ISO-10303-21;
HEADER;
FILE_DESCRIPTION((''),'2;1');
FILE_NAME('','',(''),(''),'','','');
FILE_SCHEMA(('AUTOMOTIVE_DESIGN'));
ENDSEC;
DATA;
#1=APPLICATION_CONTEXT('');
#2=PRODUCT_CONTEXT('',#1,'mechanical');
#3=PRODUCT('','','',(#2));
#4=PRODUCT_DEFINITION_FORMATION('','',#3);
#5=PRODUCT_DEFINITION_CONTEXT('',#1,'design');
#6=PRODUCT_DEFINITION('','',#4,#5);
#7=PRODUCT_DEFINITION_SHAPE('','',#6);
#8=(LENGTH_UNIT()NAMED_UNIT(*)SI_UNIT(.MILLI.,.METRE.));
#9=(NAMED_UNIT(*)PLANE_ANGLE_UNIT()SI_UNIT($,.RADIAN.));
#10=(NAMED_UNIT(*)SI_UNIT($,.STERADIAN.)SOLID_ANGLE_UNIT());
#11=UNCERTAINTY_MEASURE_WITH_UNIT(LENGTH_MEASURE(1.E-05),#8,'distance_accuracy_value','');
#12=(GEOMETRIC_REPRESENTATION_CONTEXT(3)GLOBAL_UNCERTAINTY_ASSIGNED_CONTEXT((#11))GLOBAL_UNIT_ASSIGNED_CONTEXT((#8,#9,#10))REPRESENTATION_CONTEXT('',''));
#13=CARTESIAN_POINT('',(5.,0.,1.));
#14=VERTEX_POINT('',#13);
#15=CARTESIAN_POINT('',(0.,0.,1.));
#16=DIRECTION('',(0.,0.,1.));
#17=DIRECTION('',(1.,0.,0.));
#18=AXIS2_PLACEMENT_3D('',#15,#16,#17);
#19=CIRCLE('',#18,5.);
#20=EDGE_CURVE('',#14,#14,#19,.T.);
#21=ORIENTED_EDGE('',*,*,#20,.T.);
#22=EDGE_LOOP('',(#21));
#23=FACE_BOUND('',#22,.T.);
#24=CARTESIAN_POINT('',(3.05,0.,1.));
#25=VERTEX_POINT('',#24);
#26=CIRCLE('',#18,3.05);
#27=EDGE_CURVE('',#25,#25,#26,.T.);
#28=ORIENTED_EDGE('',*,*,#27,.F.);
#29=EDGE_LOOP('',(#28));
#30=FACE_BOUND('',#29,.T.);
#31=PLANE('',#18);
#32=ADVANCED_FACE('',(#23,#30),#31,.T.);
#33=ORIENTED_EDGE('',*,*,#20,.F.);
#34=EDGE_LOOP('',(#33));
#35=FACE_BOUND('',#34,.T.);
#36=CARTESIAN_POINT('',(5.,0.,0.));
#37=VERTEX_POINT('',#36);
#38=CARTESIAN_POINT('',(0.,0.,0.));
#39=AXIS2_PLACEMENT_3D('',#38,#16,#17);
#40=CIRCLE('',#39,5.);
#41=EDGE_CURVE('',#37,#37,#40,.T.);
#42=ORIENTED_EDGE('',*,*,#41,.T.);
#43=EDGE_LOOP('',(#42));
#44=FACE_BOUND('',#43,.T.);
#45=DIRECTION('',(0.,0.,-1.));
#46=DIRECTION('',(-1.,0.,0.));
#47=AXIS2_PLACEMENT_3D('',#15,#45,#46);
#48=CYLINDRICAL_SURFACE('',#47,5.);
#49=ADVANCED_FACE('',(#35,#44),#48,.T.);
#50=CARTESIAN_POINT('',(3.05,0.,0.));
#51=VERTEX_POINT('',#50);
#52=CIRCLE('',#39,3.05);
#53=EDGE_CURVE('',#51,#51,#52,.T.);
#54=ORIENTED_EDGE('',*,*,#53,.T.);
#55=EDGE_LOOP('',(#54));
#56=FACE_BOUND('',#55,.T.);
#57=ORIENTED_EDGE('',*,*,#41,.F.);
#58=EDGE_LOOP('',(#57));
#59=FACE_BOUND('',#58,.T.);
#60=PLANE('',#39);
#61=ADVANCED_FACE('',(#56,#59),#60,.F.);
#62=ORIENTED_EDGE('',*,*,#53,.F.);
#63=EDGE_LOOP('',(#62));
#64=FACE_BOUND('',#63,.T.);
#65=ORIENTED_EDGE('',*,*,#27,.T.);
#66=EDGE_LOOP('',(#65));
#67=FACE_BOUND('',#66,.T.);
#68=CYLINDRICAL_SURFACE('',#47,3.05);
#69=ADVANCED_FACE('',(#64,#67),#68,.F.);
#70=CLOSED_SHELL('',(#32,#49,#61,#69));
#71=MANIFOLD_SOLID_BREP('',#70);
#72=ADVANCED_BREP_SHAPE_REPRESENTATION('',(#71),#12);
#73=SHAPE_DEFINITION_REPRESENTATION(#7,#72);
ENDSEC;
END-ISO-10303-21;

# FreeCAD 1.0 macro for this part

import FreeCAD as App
import Part
import Sketcher

doc = App.newDocument("Part")
params = doc.addObject("Spreadsheet::Sheet", "Params")
for row, (alias, value) in enumerate([
    ("sketch1_diameter", "10 mm"),
    ("sketch1_diameter2", "6.1 mm"),
    ("pad1_length", "1 mm"),
], start=1):
    params.set(f"A{row}", alias)
    params.set(f"B{row}", "=" + value)
    params.setAlias(f"B{row}", alias)

body = doc.addObject("PartDesign::Body", "Body")

# Sketch on XY plane
sketch1 = doc.addObject("Sketcher::SketchObject", "Sketch")
body.addObject(sketch1)
sketch1.AttachmentSupport = (doc.XY_Plane, [""])
sketch1.MapMode = "FlatFace"
sketch1.addGeometry(Part.Circle(App.Vector(0, 0, 0), App.Vector(0, 0, 1), 5), False)
sketch1.addGeometry(Part.Circle(App.Vector(0, 0, 0), App.Vector(0, 0, 1), 3), False)
sketch1.addConstraint(Sketcher.Constraint("Coincident", 0, 3, -1, 1))
sketch1.addConstraint(Sketcher.Constraint("Coincident", 1, 3, -1, 1))
sketch1.addConstraint(Sketcher.Constraint("Diameter", 0, 10.0))
sketch1.addConstraint(Sketcher.Constraint("Diameter", 1, 6.1))
sketch1.setExpression("Constraints[2]", "Params.sketch1_diameter")
sketch1.setExpression("Constraints[3]", "Params.sketch1_diameter2")
pad1 = doc.addObject("PartDesign::Pad", "Pad")
body.addObject(pad1)
pad1.Profile = sketch1
pad1.setExpression("Length", "Params.pad1_length")

doc.recompute()
